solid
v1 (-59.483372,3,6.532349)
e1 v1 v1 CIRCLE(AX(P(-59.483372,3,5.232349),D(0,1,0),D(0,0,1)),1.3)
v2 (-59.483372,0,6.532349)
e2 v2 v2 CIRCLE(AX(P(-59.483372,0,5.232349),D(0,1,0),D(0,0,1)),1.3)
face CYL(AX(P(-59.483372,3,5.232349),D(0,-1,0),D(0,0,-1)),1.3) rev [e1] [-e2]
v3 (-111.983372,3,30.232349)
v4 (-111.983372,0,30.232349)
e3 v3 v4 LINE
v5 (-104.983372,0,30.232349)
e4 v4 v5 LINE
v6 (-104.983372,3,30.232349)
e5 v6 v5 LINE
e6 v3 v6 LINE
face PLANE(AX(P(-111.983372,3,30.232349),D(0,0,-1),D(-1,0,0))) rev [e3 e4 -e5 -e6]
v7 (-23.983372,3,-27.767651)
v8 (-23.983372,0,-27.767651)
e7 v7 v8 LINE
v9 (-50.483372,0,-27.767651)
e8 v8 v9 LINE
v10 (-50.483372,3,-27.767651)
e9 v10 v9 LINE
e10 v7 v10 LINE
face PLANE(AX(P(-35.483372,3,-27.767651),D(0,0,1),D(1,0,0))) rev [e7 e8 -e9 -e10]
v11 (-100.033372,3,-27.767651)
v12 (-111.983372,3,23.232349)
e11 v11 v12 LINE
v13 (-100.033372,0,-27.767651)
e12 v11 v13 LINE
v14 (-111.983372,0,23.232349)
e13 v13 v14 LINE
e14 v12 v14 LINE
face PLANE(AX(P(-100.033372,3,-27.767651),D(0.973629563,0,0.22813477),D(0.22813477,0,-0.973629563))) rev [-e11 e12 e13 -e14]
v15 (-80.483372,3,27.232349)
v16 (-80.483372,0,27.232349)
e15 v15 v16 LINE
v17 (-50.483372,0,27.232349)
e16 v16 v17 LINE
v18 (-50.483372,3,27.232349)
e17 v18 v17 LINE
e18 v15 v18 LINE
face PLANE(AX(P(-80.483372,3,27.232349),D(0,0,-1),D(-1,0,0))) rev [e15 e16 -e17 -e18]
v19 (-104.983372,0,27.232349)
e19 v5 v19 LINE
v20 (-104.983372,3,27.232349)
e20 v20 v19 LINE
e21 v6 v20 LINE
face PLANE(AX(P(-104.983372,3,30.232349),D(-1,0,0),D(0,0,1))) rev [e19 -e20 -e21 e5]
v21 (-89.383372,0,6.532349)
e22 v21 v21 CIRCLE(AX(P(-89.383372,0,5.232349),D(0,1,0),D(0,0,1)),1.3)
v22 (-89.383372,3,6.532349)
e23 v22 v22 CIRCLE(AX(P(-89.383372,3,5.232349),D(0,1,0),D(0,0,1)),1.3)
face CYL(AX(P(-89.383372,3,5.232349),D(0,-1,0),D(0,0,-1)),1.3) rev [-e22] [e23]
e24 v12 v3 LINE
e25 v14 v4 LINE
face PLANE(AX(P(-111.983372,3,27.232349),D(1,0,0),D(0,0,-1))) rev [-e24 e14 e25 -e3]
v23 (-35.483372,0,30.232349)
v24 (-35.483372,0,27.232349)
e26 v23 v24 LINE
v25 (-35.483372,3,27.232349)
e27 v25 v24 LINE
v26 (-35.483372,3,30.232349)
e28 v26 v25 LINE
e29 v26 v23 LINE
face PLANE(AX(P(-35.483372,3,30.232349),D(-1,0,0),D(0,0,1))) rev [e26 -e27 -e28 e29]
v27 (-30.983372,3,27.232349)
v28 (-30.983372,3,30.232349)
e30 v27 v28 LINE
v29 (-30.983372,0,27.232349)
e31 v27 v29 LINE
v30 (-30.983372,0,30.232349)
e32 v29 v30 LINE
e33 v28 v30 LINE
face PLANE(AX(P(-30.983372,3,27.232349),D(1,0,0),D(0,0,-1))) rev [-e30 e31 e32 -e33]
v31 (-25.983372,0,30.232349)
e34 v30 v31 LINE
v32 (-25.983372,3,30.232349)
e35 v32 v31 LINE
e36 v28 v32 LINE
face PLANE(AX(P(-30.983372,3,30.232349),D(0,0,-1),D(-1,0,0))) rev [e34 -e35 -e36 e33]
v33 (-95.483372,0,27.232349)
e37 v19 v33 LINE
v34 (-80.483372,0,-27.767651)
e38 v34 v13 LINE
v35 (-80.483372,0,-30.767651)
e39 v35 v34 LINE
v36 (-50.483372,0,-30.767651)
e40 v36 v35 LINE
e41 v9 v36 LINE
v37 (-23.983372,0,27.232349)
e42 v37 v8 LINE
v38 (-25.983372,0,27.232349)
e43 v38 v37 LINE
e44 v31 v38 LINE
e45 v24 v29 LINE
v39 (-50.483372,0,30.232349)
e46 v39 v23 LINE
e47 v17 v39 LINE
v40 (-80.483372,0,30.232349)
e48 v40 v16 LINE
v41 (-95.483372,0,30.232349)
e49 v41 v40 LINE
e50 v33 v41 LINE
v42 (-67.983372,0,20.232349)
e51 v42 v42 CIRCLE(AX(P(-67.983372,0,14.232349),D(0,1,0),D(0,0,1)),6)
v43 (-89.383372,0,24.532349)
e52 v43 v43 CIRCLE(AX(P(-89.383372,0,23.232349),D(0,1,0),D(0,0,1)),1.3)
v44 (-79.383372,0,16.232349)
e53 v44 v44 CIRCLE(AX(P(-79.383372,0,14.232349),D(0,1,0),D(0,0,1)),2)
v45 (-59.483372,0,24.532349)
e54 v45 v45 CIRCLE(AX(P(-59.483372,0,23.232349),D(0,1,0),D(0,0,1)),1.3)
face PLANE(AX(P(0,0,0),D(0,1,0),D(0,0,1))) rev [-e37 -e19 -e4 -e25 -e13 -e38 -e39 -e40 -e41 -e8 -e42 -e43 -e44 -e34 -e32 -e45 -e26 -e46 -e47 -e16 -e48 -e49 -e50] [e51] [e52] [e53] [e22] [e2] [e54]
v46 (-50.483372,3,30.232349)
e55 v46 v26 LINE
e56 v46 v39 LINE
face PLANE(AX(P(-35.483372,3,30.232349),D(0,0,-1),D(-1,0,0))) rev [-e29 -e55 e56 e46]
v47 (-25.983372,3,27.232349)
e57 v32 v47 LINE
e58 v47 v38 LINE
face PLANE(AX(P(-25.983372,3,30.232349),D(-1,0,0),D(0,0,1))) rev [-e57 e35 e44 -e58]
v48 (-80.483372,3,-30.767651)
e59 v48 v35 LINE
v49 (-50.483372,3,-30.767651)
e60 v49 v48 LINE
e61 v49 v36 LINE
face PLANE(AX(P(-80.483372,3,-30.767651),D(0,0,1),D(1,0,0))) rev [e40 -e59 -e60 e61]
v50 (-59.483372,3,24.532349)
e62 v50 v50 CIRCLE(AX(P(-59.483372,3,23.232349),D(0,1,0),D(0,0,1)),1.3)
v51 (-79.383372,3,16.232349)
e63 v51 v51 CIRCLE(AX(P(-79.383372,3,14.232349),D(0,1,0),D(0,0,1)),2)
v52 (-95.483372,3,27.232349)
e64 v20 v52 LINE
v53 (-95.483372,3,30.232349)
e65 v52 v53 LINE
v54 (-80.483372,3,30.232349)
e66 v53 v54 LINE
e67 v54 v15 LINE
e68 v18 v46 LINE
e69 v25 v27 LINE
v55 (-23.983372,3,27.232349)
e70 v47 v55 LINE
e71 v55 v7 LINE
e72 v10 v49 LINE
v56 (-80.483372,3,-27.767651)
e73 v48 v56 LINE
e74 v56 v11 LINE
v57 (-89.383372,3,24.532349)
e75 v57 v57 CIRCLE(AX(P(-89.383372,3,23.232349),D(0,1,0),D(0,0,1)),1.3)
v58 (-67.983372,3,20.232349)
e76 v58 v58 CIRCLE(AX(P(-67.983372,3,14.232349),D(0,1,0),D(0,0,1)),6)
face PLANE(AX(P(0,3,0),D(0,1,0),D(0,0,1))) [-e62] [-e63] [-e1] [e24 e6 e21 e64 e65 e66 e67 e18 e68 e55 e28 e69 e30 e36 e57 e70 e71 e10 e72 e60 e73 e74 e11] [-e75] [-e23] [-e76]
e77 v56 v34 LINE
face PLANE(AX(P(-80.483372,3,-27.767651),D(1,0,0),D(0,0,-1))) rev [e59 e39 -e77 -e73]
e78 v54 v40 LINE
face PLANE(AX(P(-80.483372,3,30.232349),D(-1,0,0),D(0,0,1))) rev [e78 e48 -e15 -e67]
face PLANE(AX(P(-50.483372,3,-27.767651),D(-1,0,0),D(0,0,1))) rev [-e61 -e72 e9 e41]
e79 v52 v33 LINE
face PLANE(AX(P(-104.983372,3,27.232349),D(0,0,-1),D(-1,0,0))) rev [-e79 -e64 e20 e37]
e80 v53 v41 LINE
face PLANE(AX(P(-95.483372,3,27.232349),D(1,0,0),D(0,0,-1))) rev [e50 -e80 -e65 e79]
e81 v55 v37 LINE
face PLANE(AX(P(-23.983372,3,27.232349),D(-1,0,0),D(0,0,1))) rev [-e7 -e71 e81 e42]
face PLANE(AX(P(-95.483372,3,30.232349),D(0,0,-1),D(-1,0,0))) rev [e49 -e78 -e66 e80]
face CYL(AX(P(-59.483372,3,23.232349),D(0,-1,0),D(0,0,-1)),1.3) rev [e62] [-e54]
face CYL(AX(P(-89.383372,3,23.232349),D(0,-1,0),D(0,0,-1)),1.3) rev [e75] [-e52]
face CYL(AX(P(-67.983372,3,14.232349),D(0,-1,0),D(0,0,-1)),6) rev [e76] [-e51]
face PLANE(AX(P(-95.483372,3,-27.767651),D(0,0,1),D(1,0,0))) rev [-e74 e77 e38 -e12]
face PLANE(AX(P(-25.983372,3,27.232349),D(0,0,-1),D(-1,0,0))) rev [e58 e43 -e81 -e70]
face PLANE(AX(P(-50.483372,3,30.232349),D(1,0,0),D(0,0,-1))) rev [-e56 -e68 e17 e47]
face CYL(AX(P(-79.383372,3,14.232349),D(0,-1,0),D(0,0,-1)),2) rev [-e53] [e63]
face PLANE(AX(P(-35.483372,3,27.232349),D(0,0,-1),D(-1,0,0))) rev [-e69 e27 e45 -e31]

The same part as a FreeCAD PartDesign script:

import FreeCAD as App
import Part
import Sketcher

V = App.Vector
Q = App.Units.Quantity

doc = App.newDocument("Part")
body = doc.addObject("PartDesign::Body", "Body")

sketch1 = body.newObject("Sketcher::SketchObject", "Sketch")
sketch1.AttachmentSupport = (doc.getObject("XZ_Plane"), [""])
sketch1.MapMode = "FlatFace"
sketch1.addGeometry(Part.LineSegment(V(-80.483372, -27.767651, 0), V(-100.033372, -27.767651, 0)), False)
sketch1.addGeometry(Part.LineSegment(V(-100.033372, -27.767651, 0), V(-111.983372, 23.232349, 0)), False)
sketch1.addGeometry(Part.LineSegment(V(-111.983372, 23.232349, 0), V(-111.983372, 30.232349, 0)), False)
sketch1.addGeometry(Part.LineSegment(V(-111.983372, 30.232349, 0), V(-104.983372, 30.232349, 0)), False)
sketch1.addGeometry(Part.LineSegment(V(-104.983372, 30.232349, 0), V(-104.983372, 27.232349, 0)), False)
sketch1.addGeometry(Part.LineSegment(V(-104.983372, 27.232349, 0), V(-95.483372, 27.232349, 0)), False)
sketch1.addGeometry(Part.LineSegment(V(-95.483372, 27.232349, 0), V(-95.483372, 30.232349, 0)), False)
sketch1.addGeometry(Part.LineSegment(V(-95.483372, 30.232349, 0), V(-80.483372, 30.232349, 0)), False)
sketch1.addGeometry(Part.LineSegment(V(-80.483372, 30.232349, 0), V(-80.483372, 27.232349, 0)), False)
sketch1.addGeometry(Part.LineSegment(V(-80.483372, 27.232349, 0), V(-50.483372, 27.232349, 0)), False)
sketch1.addGeometry(Part.LineSegment(V(-50.483372, 27.232349, 0), V(-50.483372, 30.232349, 0)), False)
sketch1.addGeometry(Part.LineSegment(V(-50.483372, 30.232349, 0), V(-35.483372, 30.232349, 0)), False)
sketch1.addGeometry(Part.LineSegment(V(-35.483372, 30.232349, 0), V(-35.483372, 27.232349, 0)), False)
sketch1.addGeometry(Part.LineSegment(V(-35.483372, 27.232349, 0), V(-30.983372, 27.232349, 0)), False)
sketch1.addGeometry(Part.LineSegment(V(-30.983372, 27.232349, 0), V(-30.983372, 30.232349, 0)), False)
sketch1.addGeometry(Part.LineSegment(V(-30.983372, 30.232349, 0), V(-25.983372, 30.232349, 0)), False)
sketch1.addGeometry(Part.LineSegment(V(-25.983372, 30.232349, 0), V(-25.983372, 27.232349, 0)), False)
sketch1.addGeometry(Part.LineSegment(V(-25.983372, 27.232349, 0), V(-23.983372, 27.232349, 0)), False)
sketch1.addGeometry(Part.LineSegment(V(-23.983372, 27.232349, 0), V(-23.983372, -27.767651, 0)), False)
sketch1.addGeometry(Part.LineSegment(V(-23.983372, -27.767651, 0), V(-50.483372, -27.767651, 0)), False)
sketch1.addGeometry(Part.LineSegment(V(-50.483372, -27.767651, 0), V(-50.483372, -30.767651, 0)), False)
sketch1.addGeometry(Part.LineSegment(V(-50.483372, -30.767651, 0), V(-80.483372, -30.767651, 0)), False)
sketch1.addGeometry(Part.LineSegment(V(-80.483372, -30.767651, 0), V(-80.483372, -27.767651, 0)), False)
sketch1.addGeometry(Part.Circle(V(-59.483372, 23.232349, 0), V(0, 0, 1), 1.3), False)
sketch1.addGeometry(Part.Circle(V(-89.383372, 23.232349, 0), V(0, 0, 1), 1.3), False)
sketch1.addGeometry(Part.Circle(V(-67.983372, 14.232349, 0), V(0, 0, 1), 6), False)
sketch1.addGeometry(Part.Circle(V(-59.483372, 5.232349, 0), V(0, 0, 1), 1.3), False)
sketch1.addGeometry(Part.Circle(V(-79.383372, 14.232349, 0), V(0, 0, 1), 2), False)
sketch1.addGeometry(Part.Circle(V(-89.383372, 5.232349, 0), V(0, 0, 1), 1.3), False)
sketch1.addConstraint(Sketcher.Constraint("Coincident", 0, 2, 1, 1))
sketch1.addConstraint(Sketcher.Constraint("Coincident", 1, 2, 2, 1))
sketch1.addConstraint(Sketcher.Constraint("Coincident", 2, 2, 3, 1))
sketch1.addConstraint(Sketcher.Constraint("Coincident", 3, 2, 4, 1))
sketch1.addConstraint(Sketcher.Constraint("Coincident", 4, 2, 5, 1))
sketch1.addConstraint(Sketcher.Constraint("Coincident", 5, 2, 6, 1))
sketch1.addConstraint(Sketcher.Constraint("Coincident", 6, 2, 7, 1))
sketch1.addConstraint(Sketcher.Constraint("Coincident", 7, 2, 8, 1))
sketch1.addConstraint(Sketcher.Constraint("Coincident", 8, 2, 9, 1))
sketch1.addConstraint(Sketcher.Constraint("Coincident", 9, 2, 10, 1))
sketch1.addConstraint(Sketcher.Constraint("Coincident", 10, 2, 11, 1))
sketch1.addConstraint(Sketcher.Constraint("Coincident", 11, 2, 12, 1))
sketch1.addConstraint(Sketcher.Constraint("Coincident", 12, 2, 13, 1))
sketch1.addConstraint(Sketcher.Constraint("Coincident", 13, 2, 14, 1))
sketch1.addConstraint(Sketcher.Constraint("Coincident", 14, 2, 15, 1))
sketch1.addConstraint(Sketcher.Constraint("Coincident", 15, 2, 16, 1))
sketch1.addConstraint(Sketcher.Constraint("Coincident", 16, 2, 17, 1))
sketch1.addConstraint(Sketcher.Constraint("Coincident", 17, 2, 18, 1))
sketch1.addConstraint(Sketcher.Constraint("Coincident", 18, 2, 19, 1))
sketch1.addConstraint(Sketcher.Constraint("Coincident", 19, 2, 20, 1))
sketch1.addConstraint(Sketcher.Constraint("Coincident", 20, 2, 21, 1))
sketch1.addConstraint(Sketcher.Constraint("Coincident", 21, 2, 22, 1))
sketch1.addConstraint(Sketcher.Constraint("Coincident", 22, 2, 0, 1))
sketch1.addConstraint(Sketcher.Constraint("Horizontal", 0))
sketch1.addConstraint(Sketcher.Constraint("Vertical", 2))
sketch1.addConstraint(Sketcher.Constraint("Horizontal", 3))
sketch1.addConstraint(Sketcher.Constraint("Vertical", 4))
sketch1.addConstraint(Sketcher.Constraint("Horizontal", 5))
sketch1.addConstraint(Sketcher.Constraint("Vertical", 6))
sketch1.addConstraint(Sketcher.Constraint("Horizontal", 7))
sketch1.addConstraint(Sketcher.Constraint("Vertical", 8))
sketch1.addConstraint(Sketcher.Constraint("Horizontal", 9))
sketch1.addConstraint(Sketcher.Constraint("Vertical", 10))
sketch1.addConstraint(Sketcher.Constraint("Horizontal", 11))
sketch1.addConstraint(Sketcher.Constraint("Vertical", 12))
sketch1.addConstraint(Sketcher.Constraint("Horizontal", 13))
sketch1.addConstraint(Sketcher.Constraint("Vertical", 14))
sketch1.addConstraint(Sketcher.Constraint("Horizontal", 15))
sketch1.addConstraint(Sketcher.Constraint("Vertical", 16))
sketch1.addConstraint(Sketcher.Constraint("Horizontal", 17))
sketch1.addConstraint(Sketcher.Constraint("Vertical", 18))
sketch1.addConstraint(Sketcher.Constraint("Horizontal", 19))
sketch1.addConstraint(Sketcher.Constraint("Vertical", 20))
sketch1.addConstraint(Sketcher.Constraint("Horizontal", 21))
sketch1.addConstraint(Sketcher.Constraint("Vertical", 22))
sketch1.addConstraint(Sketcher.Constraint("Equal", 23, 24))
sketch1.addConstraint(Sketcher.Constraint("Equal", 24, 26))
sketch1.addConstraint(Sketcher.Constraint("Equal", 26, 28))
sketch1.addConstraint(Sketcher.Constraint("Horizontal", 23, 3, 24, 3))
sketch1.addConstraint(Sketcher.Constraint("Horizontal", 25, 3, 27, 3))
sketch1.addConstraint(Sketcher.Constraint("Horizontal", 26, 3, 28, 3))
sketch1.addConstraint(Sketcher.Constraint("Horizontal", 24, 3, 1, 2))
sketch1.addConstraint(Sketcher.Constraint("Horizontal", 3, 2, 6, 2))
sketch1.addConstraint(Sketcher.Constraint("Horizontal", 5, 2, 8, 2))
sketch1.addConstraint(Sketcher.Constraint("Horizontal", 7, 2, 10, 2))
sketch1.addConstraint(Sketcher.Constraint("Horizontal", 9, 2, 12, 2))
sketch1.addConstraint(Sketcher.Constraint("Horizontal", 11, 2, 14, 2))
sketch1.addConstraint(Sketcher.Constraint("Horizontal", 13, 2, 16, 2))
sketch1.addConstraint(Sketcher.Constraint("Horizontal", 0, 2, 18, 2))
sketch1.addConstraint(Sketcher.Constraint("Vertical", 23, 3, 26, 3))
sketch1.addConstraint(Sketcher.Constraint("Vertical", 24, 3, 28, 3))
sketch1.addConstraint(Sketcher.Constraint("Vertical", 10, 2, 19, 2))
sketch1.addConstraint(Sketcher.Constraint("Vertical", 8, 2, 21, 2))
sketch1.addConstraint(Sketcher.Constraint("Equal", 7, 11))
sketch1.addConstraint(Sketcher.Constraint("Equal", 3, 2))
sketch1.addConstraint(Sketcher.Constraint("Equal", 16, 20))
sketch1.addConstraint(Sketcher.Constraint("Diameter", 25, Q("12 mm")))
sketch1.addConstraint(Sketcher.Constraint("Diameter", 27, Q("4 mm")))
sketch1.addConstraint(Sketcher.Constraint("Diameter", 23, Q("2.6 mm")))
sketch1.addConstraint(Sketcher.Constraint("DistanceX", 3, 1, 3, 2, Q("7 mm")))
sketch1.addConstraint(Sketcher.Constraint("DistanceX", 7, 1, 7, 2, Q("15 mm")))
sketch1.addConstraint(Sketcher.Constraint("DistanceX", 9, 1, 9, 2, Q("30 mm")))
sketch1.addConstraint(Sketcher.Constraint("DistanceX", 15, 1, 15, 2, Q("5 mm")))
sketch1.addConstraint(Sketcher.Constraint("DistanceX", 17, 1, 17, 2, Q("2 mm")))
sketch1.addConstraint(Sketcher.Constraint("DistanceY", 4, 2, 4, 1, Q("3 mm")))
sketch1.addConstraint(Sketcher.Constraint("DistanceY", 18, 2, 18, 1, Q("55 mm")))
sketch1.addConstraint(Sketcher.Constraint("DistanceX", 5, 1, 5, 2, Q("9.5 mm")))
sketch1.addConstraint(Sketcher.Constraint("DistanceX", 13, 1, 13, 2, Q("4.5 mm")))
sketch1.addConstraint(Sketcher.Constraint("DistanceY", 25, 3, 23, 3, Q("9 mm")))
sketch1.addConstraint(Sketcher.Constraint("DistanceY", 26, 3, 25, 3, Q("9 mm")))
sketch1.addConstraint(Sketcher.Constraint("DistanceX", 24, 3, 27, 3, Q("10 mm")))
sketch1.addConstraint(Sketcher.Constraint("DistanceX", 1, 2, 25, 3, Q("44 mm")))
sketch1.addConstraint(Sketcher.Constraint("DistanceX", 23, 3, 9, 2, Q("9 mm")))
sketch1.addConstraint(Sketcher.Constraint("DistanceX", 0, 2, 0, 1, Q("19.55 mm")))
sketch1.addConstraint(Sketcher.Constraint("DistanceX", 24, 3, 23, 3, Q("29.9 mm")))
sketch1.addConstraint(Sketcher.Constraint("DistanceY", -1, 1, 23, 3, Q("23.232349 mm")))
sketch1.addConstraint(Sketcher.Constraint("DistanceX", 23, 3, -1, 1, Q("59.483372 mm")))
pad1 = body.newObject("PartDesign::Pad", "Pad")
pad1.Profile = sketch1
pad1.Length = 3
pad1.Reversed = True

doc.recompute()
